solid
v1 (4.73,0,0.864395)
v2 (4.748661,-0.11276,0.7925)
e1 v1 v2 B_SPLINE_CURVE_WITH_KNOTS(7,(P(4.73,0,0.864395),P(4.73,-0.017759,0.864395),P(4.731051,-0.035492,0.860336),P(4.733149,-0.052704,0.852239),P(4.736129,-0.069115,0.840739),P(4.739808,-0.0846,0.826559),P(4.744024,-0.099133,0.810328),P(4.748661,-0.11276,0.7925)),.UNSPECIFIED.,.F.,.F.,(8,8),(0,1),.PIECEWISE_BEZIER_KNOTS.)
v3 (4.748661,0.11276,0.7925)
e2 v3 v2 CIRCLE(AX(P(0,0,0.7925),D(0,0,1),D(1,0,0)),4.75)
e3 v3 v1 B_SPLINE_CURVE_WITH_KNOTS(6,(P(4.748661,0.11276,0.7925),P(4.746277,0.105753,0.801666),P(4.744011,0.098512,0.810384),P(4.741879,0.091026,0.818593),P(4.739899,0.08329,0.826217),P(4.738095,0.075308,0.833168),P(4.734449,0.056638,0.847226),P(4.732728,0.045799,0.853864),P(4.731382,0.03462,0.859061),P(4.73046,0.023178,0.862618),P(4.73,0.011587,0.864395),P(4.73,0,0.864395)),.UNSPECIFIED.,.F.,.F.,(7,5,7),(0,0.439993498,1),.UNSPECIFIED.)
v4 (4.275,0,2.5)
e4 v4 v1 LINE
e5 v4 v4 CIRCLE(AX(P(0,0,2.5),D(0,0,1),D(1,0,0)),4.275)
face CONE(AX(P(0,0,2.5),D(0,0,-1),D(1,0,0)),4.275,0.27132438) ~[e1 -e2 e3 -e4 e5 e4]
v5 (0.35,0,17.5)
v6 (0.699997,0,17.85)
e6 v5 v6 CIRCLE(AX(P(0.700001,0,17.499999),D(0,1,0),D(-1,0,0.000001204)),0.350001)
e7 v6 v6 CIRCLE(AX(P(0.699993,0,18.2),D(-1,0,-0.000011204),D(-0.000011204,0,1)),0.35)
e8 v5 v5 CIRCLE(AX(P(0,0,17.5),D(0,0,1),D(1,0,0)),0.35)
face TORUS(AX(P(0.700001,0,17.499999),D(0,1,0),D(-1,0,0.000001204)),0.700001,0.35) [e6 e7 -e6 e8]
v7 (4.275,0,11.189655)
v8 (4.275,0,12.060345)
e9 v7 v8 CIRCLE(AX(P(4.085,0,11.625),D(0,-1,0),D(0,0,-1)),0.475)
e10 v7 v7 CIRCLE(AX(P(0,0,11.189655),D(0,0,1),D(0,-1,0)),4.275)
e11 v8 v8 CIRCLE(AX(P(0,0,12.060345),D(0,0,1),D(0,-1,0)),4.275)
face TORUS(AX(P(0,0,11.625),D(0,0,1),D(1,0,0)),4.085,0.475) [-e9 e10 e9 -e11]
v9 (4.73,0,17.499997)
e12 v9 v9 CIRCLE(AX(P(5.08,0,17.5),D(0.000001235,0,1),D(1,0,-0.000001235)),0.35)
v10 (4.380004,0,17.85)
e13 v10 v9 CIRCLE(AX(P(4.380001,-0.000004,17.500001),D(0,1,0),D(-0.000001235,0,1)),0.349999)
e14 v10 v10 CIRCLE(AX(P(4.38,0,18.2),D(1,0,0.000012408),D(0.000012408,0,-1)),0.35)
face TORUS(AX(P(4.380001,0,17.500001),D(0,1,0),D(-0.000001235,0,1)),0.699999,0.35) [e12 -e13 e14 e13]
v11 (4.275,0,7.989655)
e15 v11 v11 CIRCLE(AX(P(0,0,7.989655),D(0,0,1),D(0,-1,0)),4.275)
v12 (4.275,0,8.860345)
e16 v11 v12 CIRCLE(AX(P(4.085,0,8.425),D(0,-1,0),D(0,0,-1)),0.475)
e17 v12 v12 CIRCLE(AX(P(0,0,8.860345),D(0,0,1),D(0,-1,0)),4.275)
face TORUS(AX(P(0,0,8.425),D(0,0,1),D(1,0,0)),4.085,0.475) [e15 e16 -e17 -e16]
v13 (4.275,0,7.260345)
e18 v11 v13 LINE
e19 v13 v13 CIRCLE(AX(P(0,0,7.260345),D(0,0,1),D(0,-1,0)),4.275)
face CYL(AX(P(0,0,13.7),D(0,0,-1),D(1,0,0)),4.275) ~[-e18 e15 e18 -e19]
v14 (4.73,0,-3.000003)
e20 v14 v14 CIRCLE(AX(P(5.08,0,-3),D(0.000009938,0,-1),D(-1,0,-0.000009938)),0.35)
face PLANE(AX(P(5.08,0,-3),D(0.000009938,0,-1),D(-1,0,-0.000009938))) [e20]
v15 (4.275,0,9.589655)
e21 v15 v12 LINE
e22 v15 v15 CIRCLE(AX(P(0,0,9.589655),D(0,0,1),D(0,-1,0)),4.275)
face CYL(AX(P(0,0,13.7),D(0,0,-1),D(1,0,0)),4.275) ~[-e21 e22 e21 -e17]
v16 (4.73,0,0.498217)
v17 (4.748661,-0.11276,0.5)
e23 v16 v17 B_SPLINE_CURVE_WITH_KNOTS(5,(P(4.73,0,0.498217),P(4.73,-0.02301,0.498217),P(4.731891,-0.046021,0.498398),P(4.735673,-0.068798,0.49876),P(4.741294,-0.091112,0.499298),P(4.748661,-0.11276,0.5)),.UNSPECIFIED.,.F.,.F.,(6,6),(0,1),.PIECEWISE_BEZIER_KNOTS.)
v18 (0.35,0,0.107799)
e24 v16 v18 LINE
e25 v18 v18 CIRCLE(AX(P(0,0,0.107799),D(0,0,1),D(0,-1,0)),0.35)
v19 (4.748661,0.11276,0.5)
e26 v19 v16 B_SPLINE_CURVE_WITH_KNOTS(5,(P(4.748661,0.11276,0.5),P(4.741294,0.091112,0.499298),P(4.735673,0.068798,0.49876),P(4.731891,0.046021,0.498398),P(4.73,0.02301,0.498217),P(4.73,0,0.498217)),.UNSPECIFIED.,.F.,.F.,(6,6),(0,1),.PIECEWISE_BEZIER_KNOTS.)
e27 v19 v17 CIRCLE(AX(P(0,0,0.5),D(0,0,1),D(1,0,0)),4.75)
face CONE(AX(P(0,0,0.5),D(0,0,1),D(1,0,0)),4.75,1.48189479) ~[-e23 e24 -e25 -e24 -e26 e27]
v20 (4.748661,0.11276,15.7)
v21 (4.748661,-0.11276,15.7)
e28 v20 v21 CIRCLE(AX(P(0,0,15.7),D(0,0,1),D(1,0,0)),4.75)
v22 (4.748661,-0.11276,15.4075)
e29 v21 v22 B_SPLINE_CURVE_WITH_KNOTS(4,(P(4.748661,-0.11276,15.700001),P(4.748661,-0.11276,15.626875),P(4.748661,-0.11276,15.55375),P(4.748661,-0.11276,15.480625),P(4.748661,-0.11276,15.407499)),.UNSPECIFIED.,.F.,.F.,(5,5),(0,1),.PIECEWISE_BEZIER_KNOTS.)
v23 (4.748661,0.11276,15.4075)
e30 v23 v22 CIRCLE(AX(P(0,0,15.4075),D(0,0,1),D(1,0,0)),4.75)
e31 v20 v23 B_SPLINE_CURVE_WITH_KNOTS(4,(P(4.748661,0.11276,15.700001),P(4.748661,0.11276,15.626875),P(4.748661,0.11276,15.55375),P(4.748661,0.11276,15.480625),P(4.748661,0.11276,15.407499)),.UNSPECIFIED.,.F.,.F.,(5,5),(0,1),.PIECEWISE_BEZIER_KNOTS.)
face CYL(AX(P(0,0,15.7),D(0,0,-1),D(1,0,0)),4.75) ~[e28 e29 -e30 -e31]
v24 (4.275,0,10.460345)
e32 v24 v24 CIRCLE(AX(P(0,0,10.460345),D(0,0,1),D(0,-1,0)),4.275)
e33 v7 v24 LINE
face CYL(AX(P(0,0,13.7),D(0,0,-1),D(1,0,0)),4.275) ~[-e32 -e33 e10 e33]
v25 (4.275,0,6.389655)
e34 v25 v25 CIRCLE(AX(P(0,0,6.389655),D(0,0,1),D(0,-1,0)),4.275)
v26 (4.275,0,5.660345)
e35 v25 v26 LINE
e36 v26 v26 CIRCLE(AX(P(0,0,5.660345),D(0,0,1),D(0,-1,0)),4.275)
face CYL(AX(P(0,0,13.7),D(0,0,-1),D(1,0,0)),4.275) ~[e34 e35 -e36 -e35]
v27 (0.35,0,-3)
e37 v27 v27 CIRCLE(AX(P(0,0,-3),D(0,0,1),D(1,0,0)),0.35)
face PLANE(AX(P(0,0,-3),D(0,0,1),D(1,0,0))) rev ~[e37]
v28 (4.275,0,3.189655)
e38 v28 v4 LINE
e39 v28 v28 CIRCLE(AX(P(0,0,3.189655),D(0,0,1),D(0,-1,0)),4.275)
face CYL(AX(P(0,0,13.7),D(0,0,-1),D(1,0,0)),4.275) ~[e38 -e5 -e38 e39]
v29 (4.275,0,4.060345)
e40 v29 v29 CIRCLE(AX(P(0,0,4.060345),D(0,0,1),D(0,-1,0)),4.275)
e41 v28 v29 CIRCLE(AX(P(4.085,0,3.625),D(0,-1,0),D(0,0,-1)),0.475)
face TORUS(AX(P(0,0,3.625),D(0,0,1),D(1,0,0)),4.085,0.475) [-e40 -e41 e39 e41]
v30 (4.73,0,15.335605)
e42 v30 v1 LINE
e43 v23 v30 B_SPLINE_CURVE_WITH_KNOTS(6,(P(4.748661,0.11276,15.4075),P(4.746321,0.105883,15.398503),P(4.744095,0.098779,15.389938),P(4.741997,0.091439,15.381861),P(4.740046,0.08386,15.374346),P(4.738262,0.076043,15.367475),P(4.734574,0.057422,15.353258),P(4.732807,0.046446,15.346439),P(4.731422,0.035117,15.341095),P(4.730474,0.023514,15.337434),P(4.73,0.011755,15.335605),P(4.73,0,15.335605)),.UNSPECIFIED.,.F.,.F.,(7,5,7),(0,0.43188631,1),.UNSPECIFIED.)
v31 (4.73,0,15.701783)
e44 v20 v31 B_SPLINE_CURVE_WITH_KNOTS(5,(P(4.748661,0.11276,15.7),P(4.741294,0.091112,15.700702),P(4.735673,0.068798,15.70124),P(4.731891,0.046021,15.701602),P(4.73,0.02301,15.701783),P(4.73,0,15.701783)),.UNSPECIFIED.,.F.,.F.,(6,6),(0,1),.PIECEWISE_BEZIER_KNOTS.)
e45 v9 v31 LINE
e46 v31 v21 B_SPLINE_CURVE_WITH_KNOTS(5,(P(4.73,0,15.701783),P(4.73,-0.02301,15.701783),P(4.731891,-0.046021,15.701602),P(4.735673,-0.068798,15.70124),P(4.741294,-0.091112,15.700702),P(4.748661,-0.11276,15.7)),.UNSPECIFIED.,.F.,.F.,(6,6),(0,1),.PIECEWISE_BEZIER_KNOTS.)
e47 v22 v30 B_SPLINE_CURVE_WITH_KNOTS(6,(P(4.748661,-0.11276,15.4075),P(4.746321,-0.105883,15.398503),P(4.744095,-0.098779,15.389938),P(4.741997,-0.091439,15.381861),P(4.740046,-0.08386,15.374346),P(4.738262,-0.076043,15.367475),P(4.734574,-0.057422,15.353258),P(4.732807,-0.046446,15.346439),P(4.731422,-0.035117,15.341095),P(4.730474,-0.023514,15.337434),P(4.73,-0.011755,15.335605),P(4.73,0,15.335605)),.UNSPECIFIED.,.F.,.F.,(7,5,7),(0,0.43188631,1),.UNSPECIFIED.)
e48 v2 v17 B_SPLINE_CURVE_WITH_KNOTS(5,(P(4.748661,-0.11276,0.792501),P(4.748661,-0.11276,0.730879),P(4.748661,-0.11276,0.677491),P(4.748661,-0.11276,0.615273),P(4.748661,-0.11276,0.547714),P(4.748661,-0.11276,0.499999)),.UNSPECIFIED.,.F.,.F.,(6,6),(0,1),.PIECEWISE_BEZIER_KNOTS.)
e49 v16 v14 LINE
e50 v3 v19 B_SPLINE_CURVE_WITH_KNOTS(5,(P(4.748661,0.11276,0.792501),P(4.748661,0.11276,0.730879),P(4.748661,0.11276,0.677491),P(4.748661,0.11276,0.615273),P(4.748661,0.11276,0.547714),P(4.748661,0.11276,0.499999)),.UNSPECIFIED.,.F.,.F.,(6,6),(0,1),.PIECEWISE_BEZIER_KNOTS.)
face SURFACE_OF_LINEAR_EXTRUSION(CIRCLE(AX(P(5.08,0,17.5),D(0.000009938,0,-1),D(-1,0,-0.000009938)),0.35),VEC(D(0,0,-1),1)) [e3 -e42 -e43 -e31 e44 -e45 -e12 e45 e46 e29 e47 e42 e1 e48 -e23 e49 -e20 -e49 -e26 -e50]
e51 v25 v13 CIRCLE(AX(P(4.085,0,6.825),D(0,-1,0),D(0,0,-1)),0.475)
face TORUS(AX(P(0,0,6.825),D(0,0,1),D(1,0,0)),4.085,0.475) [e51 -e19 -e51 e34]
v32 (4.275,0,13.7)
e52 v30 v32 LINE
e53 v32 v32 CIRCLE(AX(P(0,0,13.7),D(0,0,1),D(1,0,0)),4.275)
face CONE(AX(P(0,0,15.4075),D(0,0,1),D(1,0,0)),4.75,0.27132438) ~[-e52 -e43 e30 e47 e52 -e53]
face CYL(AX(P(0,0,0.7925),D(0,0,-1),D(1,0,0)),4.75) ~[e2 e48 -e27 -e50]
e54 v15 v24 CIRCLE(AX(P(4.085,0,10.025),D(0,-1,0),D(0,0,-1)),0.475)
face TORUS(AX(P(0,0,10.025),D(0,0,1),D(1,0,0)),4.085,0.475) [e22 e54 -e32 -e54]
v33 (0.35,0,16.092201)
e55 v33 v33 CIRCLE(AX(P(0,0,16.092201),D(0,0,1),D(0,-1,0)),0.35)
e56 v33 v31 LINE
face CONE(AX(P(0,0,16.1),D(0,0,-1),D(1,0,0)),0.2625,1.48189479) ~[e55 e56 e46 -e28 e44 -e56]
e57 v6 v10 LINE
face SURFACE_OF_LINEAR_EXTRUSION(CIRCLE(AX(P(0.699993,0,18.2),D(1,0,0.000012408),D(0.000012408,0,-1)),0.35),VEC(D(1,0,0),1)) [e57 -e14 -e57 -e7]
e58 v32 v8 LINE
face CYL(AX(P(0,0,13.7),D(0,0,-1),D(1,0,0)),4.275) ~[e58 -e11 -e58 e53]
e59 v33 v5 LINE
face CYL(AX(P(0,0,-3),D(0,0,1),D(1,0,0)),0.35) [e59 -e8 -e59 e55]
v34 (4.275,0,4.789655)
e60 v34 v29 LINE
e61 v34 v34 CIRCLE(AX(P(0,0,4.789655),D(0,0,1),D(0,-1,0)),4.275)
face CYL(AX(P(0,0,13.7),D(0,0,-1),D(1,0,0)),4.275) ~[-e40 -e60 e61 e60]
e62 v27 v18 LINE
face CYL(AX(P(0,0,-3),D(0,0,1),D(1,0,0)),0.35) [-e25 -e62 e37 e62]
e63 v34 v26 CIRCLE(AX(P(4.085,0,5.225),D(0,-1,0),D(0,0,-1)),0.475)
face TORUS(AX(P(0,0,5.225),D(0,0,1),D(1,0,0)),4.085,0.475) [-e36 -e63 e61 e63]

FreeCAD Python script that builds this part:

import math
import FreeCAD as App
import Part
import Sketcher

doc = App.newDocument("Part")
params = doc.addObject("Spreadsheet::Sheet", "Params")
for row, (alias, value) in enumerate([
    ("sketch1_height", "16 mm"),
    ("sketch1_height2", "11.2 mm"),
    ("revolution_angle", "360 deg"),
    ("sketch2_diameter", "0.7 mm"),
    ("sketch3_radius", "0.700001 mm"),
    ("sketch3_height", "20.5 mm"),
    ("revolution2_angle", "360 deg"),
], start=1):
    params.set(f"A{row}", alias)
    params.set(f"B{row}", "=" + value)
    params.setAlias(f"B{row}", alias)

body = doc.addObject("PartDesign::Body", "Body")

# Sketch on XZ plane
sketch1 = doc.addObject("Sketcher::SketchObject", "Sketch")
body.addObject(sketch1)
sketch1.AttachmentSupport = (doc.XZ_Plane, [""])
sketch1.MapMode = "FlatFace"
sketch1.addGeometry([
    Part.LineSegment(App.Vector(0, 16.1, 0), App.Vector(0, 0.1, 0)),  # 0
    Part.LineSegment(App.Vector(0, 0.1, 0), App.Vector(0.26, 0.1, 0)),  # 1
    Part.LineSegment(App.Vector(0.26, 0.1, 0), App.Vector(4.75, 0.5, 0)),  # 2
    Part.LineSegment(App.Vector(4.75, 0.5, 0), App.Vector(4.75, 0.79, 0)),  # 3
    Part.LineSegment(App.Vector(4.75, 0.79, 0), App.Vector(4.28, 2.5, 0)),  # 4
    Part.LineSegment(App.Vector(4.28, 2.5, 0), App.Vector(4.28, 13.7, 0)),  # 5
    Part.LineSegment(App.Vector(4.28, 13.7, 0), App.Vector(4.75, 15.41, 0)),  # 6
    Part.LineSegment(App.Vector(4.75, 15.41, 0), App.Vector(4.75, 15.7, 0)),  # 7
    Part.LineSegment(App.Vector(4.75, 15.7, 0), App.Vector(0.26, 16.1, 0)),  # 8
    Part.LineSegment(App.Vector(0.26, 16.1, 0), App.Vector(0, 16.1, 0)),  # 9
], False)
sketch1.addConstraint([
    Sketcher.Constraint("Coincident", 0, 2, 1, 1),
    Sketcher.Constraint("Coincident", 1, 2, 2, 1),
    Sketcher.Constraint("Coincident", 2, 2, 3, 1),
    Sketcher.Constraint("Coincident", 3, 2, 4, 1),
    Sketcher.Constraint("Coincident", 4, 2, 5, 1),
    Sketcher.Constraint("Coincident", 5, 2, 6, 1),
    Sketcher.Constraint("Coincident", 6, 2, 7, 1),
    Sketcher.Constraint("Coincident", 7, 2, 8, 1),
    Sketcher.Constraint("Coincident", 8, 2, 9, 1),
    Sketcher.Constraint("Coincident", 9, 2, 0, 1),
    Sketcher.Constraint("Vertical", 0),
    Sketcher.Constraint("Horizontal", 1),
    Sketcher.Constraint("Vertical", 3),
    Sketcher.Constraint("Vertical", 5),
    Sketcher.Constraint("Vertical", 7),
    Sketcher.Constraint("Horizontal", 9),
    Sketcher.Constraint("PointOnObject", 0, 2, -2),
    Sketcher.Constraint("Vertical", 3, 2, 6, 2),
    Sketcher.Constraint("Vertical", 1, 2, 8, 2),
    Sketcher.Constraint("Equal", 3, 7),
    Sketcher.Constraint("Equal", 4, 6),
    Sketcher.Constraint("Equal", 2, 8),
    Sketcher.Constraint("DistanceY", 0, 2, 0, 1, 16.0),
    Sketcher.Constraint("DistanceY", 5, 1, 5, 2, 11.2),
    Sketcher.Constraint("DistanceY", 2, 2, 4, 2, 2.0),
    Sketcher.Constraint("DistanceY", -1, 1, 0, 2, 0.1),
    Sketcher.Constraint("DistanceX", -1, 1, 2, 2, 4.75),
    Sketcher.Constraint("DistanceX", 1, 1, 1, 2, 0.2625),
    Sketcher.Constraint("DistanceY", 3, 1, 3, 2, 0.2925),
    Sketcher.Constraint("DistanceX", -1, 1, 4, 2, 4.275),
])
sketch1.setExpression("Constraints[22]", "Params.sketch1_height")
sketch1.setExpression("Constraints[23]", "Params.sketch1_height2")
revolution = doc.addObject("PartDesign::Revolution", "Revolution")
body.addObject(revolution)
revolution.Profile = sketch1
revolution.ReferenceAxis = (sketch1, ["V_Axis"])
revolution.setExpression("Angle", "Params.revolution_angle")
body2 = doc.addObject("PartDesign::Body", "Body001")

# Sketch on XY plane
sketch2 = doc.addObject("Sketcher::SketchObject", "Sketch001")
body2.addObject(sketch2)
sketch2.AttachmentSupport = (doc.getObject("XY_Plane001"), [""])
sketch2.MapMode = "FlatFace"
sketch2.AttachmentOffset = App.Placement(App.Vector(0, 0, -2), App.Rotation())
sketch2.addGeometry(Part.Circle(App.Vector(0, 0, 0), App.Vector(0, 0, 1), 0.35), False)
sketch2.addConstraint([
    Sketcher.Constraint("Coincident", 0, 3, -1, 1),
    Sketcher.Constraint("Diameter", 0, 0.7),
])
sketch2.setExpression("Constraints[1]", "Params.sketch2_diameter")

# Sketch on XZ plane
sketch3 = doc.addObject("Sketcher::SketchObject", "Sketch002")
body2.addObject(sketch3)
sketch3.AttachmentSupport = (doc.getObject("XZ_Plane001"), [""])
sketch3.MapMode = "FlatFace"
sketch3.addGeometry([
    Part.LineSegment(App.Vector(0, -3, 0), App.Vector(0, 17.5, 0)),  # 0
    Part.ArcOfCircle(Part.Circle(App.Vector(0.7, 17.5, 0), App.Vector(0, 0, 1), 0.7), math.radians(90), math.radians(180)),  # 1
    Part.LineSegment(App.Vector(0.7, 18.2, 0), App.Vector(4.4, 18.2, 0)),  # 2
    Part.ArcOfCircle(Part.Circle(App.Vector(4.4, 17.5, 0), App.Vector(0, 0, 1), 0.7), math.radians(0), math.radians(90)),  # 3
    Part.LineSegment(App.Vector(5.1, 17.5, 0), App.Vector(5.1, -3, 0)),  # 4
], False)
sketch3.addConstraint([
    Sketcher.Constraint("Tangent", 0, 2, 1, 2),
    Sketcher.Constraint("Coincident", 1, 1, 2, 1),
    Sketcher.Constraint("Tangent", 2, 2, 3, 2),
    Sketcher.Constraint("Tangent", 3, 1, 4, 1),
    Sketcher.Constraint("Vertical", 0),
    Sketcher.Constraint("Horizontal", 2),
    Sketcher.Constraint("Vertical", 4),
    Sketcher.Constraint("Equal", 1, 3),
    Sketcher.Constraint("PointOnObject", 0, 1, -2),
    Sketcher.Constraint("Horizontal", 0, 1, 4, 2),
    Sketcher.Constraint("Radius", 1, 0.700001),
    Sketcher.Constraint("DistanceY", 0, 1, 0, 2, 20.5),
    Sketcher.Constraint("DistanceY", 0, 1, -1, 1, 3.0),
    Sketcher.Constraint("DistanceX", -1, 1, 3, 3, 4.380001),
    Sketcher.Constraint("DistanceX", 2, 1, 2, 2, 3.680007),
])
sketch3.setExpression("Constraints[10]", "Params.sketch3_radius")
sketch3.setExpression("Constraints[11]", "Params.sketch3_height")
doc.recompute()

additivepipe = doc.addObject("PartDesign::AdditivePipe", "AdditivePipe")
body2.addObject(additivepipe)
additivepipe.Profile = sketch2
additivepipe.Spine = (sketch3, ["Edge1", "Edge2", "Edge3", "Edge4", "Edge5"])
body3 = doc.addObject("PartDesign::Body", "Body002")

# Sketch on XZ plane
sketch4 = doc.addObject("Sketcher::SketchObject", "Sketch003")
body3.addObject(sketch4)
sketch4.AttachmentSupport = (doc.getObject("XZ_Plane002"), [""])
sketch4.MapMode = "FlatFace"
sketch4.addGeometry([
    Part.LineSegment(App.Vector(3.8, 12.75, 0), App.Vector(3.8, 2.5, 0)),  # 0
    Part.LineSegment(App.Vector(3.8, 2.5, 0), App.Vector(4.08, 2.5, 0)),  # 1
    Part.LineSegment(App.Vector(4.08, 2.5, 0), App.Vector(4.08, 3.15, 0)),  # 2
    Part.ArcOfCircle(Part.Circle(App.Vector(4.08, 3.62, 0), App.Vector(0, 0, 1), 0.47), math.radians(-90), math.radians(90)),  # 3
    Part.LineSegment(App.Vector(4.08, 4.1, 0), App.Vector(4.08, 4.75, 0)),  # 4
    Part.ArcOfCircle(Part.Circle(App.Vector(4.08, 5.22, 0), App.Vector(0, 0, 1), 0.47), math.radians(-90), math.radians(90)),  # 5
    Part.LineSegment(App.Vector(4.08, 5.7, 0), App.Vector(4.08, 6.35, 0)),  # 6
    Part.ArcOfCircle(Part.Circle(App.Vector(4.08, 6.83, 0), App.Vector(0, 0, 1), 0.47), math.radians(-90), math.radians(90)),  # 7
    Part.LineSegment(App.Vector(4.08, 7.3, 0), App.Vector(4.08, 7.95, 0)),  # 8
    Part.ArcOfCircle(Part.Circle(App.Vector(4.08, 8.43, 0), App.Vector(0, 0, 1), 0.47), math.radians(-90), math.radians(90)),  # 9
    Part.LineSegment(App.Vector(4.08, 8.9, 0), App.Vector(4.08, 9.55, 0)),  # 10
    Part.ArcOfCircle(Part.Circle(App.Vector(4.08, 10.03, 0), App.Vector(0, 0, 1), 0.47), math.radians(-90), math.radians(90)),  # 11
    Part.LineSegment(App.Vector(4.08, 10.5, 0), App.Vector(4.08, 11.15, 0)),  # 12
    Part.ArcOfCircle(Part.Circle(App.Vector(4.08, 11.62, 0), App.Vector(0, 0, 1), 0.47), math.radians(-90), math.radians(90)),  # 13
    Part.LineSegment(App.Vector(4.08, 12.1, 0), App.Vector(4.08, 12.75, 0)),  # 14
    Part.LineSegment(App.Vector(4.08, 12.75, 0), App.Vector(3.8, 12.75, 0)),  # 15
], False)
sketch4.addConstraint([
    Sketcher.Constraint("Coincident", 0, 2, 1, 1),
    Sketcher.Constraint("Coincident", 1, 2, 2, 1),
    Sketcher.Constraint("Coincident", 2, 2, 3, 1),
    Sketcher.Constraint("Coincident", 3, 2, 4, 1),
    Sketcher.Constraint("Coincident", 4, 2, 5, 1),
    Sketcher.Constraint("Coincident", 5, 2, 6, 1),
    Sketcher.Constraint("Coincident", 6, 2, 7, 1),
    Sketcher.Constraint("Coincident", 7, 2, 8, 1),
    Sketcher.Constraint("Coincident", 8, 2, 9, 1),
    Sketcher.Constraint("Coincident", 9, 2, 10, 1),
    Sketcher.Constraint("Coincident", 10, 2, 11, 1),
    Sketcher.Constraint("Coincident", 11, 2, 12, 1),
    Sketcher.Constraint("Coincident", 12, 2, 13, 1),
    Sketcher.Constraint("Coincident", 13, 2, 14, 1),
    Sketcher.Constraint("Coincident", 14, 2, 15, 1),
    Sketcher.Constraint("Coincident", 15, 2, 0, 1),
    Sketcher.Constraint("Vertical", 0),
    Sketcher.Constraint("Horizontal", 1),
    Sketcher.Constraint("Vertical", 2),
    Sketcher.Constraint("Vertical", 4),
    Sketcher.Constraint("Vertical", 6),
    Sketcher.Constraint("Vertical", 8),
    Sketcher.Constraint("Vertical", 10),
    Sketcher.Constraint("Vertical", 12),
    Sketcher.Constraint("Vertical", 14),
    Sketcher.Constraint("Horizontal", 15),
    Sketcher.Constraint("Equal", 3, 5),
    Sketcher.Constraint("Equal", 5, 7),
    Sketcher.Constraint("Equal", 7, 9),
    Sketcher.Constraint("Equal", 9, 11),
    Sketcher.Constraint("Equal", 11, 13),
    Sketcher.Constraint("Vertical", 3, 3, 5, 3),
    Sketcher.Constraint("Vertical", 5, 3, 7, 3),
    Sketcher.Constraint("Vertical", 7, 3, 9, 3),
    Sketcher.Constraint("Vertical", 9, 3, 11, 3),
    Sketcher.Constraint("Vertical", 11, 3, 13, 3),
    Sketcher.Constraint("Vertical", 13, 3, 1, 2),
    Sketcher.Constraint("Vertical", 2, 2, 3, 2),
    Sketcher.Constraint("Vertical", 4, 2, 5, 2),
    Sketcher.Constraint("Vertical", 6, 2, 7, 2),
    Sketcher.Constraint("Vertical", 8, 2, 9, 2),
    Sketcher.Constraint("Vertical", 10, 2, 11, 2),
    Sketcher.Constraint("Vertical", 12, 2, 13, 2),
    Sketcher.Constraint("Equal", 2, 4),
    Sketcher.Constraint("Equal", 4, 6),
    Sketcher.Constraint("Equal", 6, 8),
    Sketcher.Constraint("Equal", 8, 10),
    Sketcher.Constraint("Equal", 10, 12),
    Sketcher.Constraint("Equal", 12, 14),
    Sketcher.Constraint("Radius", 3, 0.475),
    Sketcher.Constraint("DistanceY", 3, 3, 13, 3, 8.0),
    Sketcher.Constraint("DistanceX", -1, 1, 0, 2, 3.8),
    Sketcher.Constraint("DistanceY", -1, 1, 0, 2, 2.5),
    Sketcher.Constraint("DistanceX", 1, 1, 1, 2, 0.285),
])
revolution2 = doc.addObject("PartDesign::Revolution", "Revolution001")
body3.addObject(revolution2)
revolution2.Profile = sketch4
revolution2.ReferenceAxis = (sketch4, ["V_Axis"])
revolution2.setExpression("Angle", "Params.revolution2_angle")
doc.recompute()

boolean = doc.addObject("PartDesign::Boolean", "Boolean")
body3.addObject(boolean)
boolean.Type = "Fuse"
boolean.addObjects([body])
doc.recompute()

boolean2 = doc.addObject("PartDesign::Boolean", "Boolean001")
body3.addObject(boolean2)
boolean2.Type = "Fuse"
boolean2.addObjects([body2])

doc.recompute()
